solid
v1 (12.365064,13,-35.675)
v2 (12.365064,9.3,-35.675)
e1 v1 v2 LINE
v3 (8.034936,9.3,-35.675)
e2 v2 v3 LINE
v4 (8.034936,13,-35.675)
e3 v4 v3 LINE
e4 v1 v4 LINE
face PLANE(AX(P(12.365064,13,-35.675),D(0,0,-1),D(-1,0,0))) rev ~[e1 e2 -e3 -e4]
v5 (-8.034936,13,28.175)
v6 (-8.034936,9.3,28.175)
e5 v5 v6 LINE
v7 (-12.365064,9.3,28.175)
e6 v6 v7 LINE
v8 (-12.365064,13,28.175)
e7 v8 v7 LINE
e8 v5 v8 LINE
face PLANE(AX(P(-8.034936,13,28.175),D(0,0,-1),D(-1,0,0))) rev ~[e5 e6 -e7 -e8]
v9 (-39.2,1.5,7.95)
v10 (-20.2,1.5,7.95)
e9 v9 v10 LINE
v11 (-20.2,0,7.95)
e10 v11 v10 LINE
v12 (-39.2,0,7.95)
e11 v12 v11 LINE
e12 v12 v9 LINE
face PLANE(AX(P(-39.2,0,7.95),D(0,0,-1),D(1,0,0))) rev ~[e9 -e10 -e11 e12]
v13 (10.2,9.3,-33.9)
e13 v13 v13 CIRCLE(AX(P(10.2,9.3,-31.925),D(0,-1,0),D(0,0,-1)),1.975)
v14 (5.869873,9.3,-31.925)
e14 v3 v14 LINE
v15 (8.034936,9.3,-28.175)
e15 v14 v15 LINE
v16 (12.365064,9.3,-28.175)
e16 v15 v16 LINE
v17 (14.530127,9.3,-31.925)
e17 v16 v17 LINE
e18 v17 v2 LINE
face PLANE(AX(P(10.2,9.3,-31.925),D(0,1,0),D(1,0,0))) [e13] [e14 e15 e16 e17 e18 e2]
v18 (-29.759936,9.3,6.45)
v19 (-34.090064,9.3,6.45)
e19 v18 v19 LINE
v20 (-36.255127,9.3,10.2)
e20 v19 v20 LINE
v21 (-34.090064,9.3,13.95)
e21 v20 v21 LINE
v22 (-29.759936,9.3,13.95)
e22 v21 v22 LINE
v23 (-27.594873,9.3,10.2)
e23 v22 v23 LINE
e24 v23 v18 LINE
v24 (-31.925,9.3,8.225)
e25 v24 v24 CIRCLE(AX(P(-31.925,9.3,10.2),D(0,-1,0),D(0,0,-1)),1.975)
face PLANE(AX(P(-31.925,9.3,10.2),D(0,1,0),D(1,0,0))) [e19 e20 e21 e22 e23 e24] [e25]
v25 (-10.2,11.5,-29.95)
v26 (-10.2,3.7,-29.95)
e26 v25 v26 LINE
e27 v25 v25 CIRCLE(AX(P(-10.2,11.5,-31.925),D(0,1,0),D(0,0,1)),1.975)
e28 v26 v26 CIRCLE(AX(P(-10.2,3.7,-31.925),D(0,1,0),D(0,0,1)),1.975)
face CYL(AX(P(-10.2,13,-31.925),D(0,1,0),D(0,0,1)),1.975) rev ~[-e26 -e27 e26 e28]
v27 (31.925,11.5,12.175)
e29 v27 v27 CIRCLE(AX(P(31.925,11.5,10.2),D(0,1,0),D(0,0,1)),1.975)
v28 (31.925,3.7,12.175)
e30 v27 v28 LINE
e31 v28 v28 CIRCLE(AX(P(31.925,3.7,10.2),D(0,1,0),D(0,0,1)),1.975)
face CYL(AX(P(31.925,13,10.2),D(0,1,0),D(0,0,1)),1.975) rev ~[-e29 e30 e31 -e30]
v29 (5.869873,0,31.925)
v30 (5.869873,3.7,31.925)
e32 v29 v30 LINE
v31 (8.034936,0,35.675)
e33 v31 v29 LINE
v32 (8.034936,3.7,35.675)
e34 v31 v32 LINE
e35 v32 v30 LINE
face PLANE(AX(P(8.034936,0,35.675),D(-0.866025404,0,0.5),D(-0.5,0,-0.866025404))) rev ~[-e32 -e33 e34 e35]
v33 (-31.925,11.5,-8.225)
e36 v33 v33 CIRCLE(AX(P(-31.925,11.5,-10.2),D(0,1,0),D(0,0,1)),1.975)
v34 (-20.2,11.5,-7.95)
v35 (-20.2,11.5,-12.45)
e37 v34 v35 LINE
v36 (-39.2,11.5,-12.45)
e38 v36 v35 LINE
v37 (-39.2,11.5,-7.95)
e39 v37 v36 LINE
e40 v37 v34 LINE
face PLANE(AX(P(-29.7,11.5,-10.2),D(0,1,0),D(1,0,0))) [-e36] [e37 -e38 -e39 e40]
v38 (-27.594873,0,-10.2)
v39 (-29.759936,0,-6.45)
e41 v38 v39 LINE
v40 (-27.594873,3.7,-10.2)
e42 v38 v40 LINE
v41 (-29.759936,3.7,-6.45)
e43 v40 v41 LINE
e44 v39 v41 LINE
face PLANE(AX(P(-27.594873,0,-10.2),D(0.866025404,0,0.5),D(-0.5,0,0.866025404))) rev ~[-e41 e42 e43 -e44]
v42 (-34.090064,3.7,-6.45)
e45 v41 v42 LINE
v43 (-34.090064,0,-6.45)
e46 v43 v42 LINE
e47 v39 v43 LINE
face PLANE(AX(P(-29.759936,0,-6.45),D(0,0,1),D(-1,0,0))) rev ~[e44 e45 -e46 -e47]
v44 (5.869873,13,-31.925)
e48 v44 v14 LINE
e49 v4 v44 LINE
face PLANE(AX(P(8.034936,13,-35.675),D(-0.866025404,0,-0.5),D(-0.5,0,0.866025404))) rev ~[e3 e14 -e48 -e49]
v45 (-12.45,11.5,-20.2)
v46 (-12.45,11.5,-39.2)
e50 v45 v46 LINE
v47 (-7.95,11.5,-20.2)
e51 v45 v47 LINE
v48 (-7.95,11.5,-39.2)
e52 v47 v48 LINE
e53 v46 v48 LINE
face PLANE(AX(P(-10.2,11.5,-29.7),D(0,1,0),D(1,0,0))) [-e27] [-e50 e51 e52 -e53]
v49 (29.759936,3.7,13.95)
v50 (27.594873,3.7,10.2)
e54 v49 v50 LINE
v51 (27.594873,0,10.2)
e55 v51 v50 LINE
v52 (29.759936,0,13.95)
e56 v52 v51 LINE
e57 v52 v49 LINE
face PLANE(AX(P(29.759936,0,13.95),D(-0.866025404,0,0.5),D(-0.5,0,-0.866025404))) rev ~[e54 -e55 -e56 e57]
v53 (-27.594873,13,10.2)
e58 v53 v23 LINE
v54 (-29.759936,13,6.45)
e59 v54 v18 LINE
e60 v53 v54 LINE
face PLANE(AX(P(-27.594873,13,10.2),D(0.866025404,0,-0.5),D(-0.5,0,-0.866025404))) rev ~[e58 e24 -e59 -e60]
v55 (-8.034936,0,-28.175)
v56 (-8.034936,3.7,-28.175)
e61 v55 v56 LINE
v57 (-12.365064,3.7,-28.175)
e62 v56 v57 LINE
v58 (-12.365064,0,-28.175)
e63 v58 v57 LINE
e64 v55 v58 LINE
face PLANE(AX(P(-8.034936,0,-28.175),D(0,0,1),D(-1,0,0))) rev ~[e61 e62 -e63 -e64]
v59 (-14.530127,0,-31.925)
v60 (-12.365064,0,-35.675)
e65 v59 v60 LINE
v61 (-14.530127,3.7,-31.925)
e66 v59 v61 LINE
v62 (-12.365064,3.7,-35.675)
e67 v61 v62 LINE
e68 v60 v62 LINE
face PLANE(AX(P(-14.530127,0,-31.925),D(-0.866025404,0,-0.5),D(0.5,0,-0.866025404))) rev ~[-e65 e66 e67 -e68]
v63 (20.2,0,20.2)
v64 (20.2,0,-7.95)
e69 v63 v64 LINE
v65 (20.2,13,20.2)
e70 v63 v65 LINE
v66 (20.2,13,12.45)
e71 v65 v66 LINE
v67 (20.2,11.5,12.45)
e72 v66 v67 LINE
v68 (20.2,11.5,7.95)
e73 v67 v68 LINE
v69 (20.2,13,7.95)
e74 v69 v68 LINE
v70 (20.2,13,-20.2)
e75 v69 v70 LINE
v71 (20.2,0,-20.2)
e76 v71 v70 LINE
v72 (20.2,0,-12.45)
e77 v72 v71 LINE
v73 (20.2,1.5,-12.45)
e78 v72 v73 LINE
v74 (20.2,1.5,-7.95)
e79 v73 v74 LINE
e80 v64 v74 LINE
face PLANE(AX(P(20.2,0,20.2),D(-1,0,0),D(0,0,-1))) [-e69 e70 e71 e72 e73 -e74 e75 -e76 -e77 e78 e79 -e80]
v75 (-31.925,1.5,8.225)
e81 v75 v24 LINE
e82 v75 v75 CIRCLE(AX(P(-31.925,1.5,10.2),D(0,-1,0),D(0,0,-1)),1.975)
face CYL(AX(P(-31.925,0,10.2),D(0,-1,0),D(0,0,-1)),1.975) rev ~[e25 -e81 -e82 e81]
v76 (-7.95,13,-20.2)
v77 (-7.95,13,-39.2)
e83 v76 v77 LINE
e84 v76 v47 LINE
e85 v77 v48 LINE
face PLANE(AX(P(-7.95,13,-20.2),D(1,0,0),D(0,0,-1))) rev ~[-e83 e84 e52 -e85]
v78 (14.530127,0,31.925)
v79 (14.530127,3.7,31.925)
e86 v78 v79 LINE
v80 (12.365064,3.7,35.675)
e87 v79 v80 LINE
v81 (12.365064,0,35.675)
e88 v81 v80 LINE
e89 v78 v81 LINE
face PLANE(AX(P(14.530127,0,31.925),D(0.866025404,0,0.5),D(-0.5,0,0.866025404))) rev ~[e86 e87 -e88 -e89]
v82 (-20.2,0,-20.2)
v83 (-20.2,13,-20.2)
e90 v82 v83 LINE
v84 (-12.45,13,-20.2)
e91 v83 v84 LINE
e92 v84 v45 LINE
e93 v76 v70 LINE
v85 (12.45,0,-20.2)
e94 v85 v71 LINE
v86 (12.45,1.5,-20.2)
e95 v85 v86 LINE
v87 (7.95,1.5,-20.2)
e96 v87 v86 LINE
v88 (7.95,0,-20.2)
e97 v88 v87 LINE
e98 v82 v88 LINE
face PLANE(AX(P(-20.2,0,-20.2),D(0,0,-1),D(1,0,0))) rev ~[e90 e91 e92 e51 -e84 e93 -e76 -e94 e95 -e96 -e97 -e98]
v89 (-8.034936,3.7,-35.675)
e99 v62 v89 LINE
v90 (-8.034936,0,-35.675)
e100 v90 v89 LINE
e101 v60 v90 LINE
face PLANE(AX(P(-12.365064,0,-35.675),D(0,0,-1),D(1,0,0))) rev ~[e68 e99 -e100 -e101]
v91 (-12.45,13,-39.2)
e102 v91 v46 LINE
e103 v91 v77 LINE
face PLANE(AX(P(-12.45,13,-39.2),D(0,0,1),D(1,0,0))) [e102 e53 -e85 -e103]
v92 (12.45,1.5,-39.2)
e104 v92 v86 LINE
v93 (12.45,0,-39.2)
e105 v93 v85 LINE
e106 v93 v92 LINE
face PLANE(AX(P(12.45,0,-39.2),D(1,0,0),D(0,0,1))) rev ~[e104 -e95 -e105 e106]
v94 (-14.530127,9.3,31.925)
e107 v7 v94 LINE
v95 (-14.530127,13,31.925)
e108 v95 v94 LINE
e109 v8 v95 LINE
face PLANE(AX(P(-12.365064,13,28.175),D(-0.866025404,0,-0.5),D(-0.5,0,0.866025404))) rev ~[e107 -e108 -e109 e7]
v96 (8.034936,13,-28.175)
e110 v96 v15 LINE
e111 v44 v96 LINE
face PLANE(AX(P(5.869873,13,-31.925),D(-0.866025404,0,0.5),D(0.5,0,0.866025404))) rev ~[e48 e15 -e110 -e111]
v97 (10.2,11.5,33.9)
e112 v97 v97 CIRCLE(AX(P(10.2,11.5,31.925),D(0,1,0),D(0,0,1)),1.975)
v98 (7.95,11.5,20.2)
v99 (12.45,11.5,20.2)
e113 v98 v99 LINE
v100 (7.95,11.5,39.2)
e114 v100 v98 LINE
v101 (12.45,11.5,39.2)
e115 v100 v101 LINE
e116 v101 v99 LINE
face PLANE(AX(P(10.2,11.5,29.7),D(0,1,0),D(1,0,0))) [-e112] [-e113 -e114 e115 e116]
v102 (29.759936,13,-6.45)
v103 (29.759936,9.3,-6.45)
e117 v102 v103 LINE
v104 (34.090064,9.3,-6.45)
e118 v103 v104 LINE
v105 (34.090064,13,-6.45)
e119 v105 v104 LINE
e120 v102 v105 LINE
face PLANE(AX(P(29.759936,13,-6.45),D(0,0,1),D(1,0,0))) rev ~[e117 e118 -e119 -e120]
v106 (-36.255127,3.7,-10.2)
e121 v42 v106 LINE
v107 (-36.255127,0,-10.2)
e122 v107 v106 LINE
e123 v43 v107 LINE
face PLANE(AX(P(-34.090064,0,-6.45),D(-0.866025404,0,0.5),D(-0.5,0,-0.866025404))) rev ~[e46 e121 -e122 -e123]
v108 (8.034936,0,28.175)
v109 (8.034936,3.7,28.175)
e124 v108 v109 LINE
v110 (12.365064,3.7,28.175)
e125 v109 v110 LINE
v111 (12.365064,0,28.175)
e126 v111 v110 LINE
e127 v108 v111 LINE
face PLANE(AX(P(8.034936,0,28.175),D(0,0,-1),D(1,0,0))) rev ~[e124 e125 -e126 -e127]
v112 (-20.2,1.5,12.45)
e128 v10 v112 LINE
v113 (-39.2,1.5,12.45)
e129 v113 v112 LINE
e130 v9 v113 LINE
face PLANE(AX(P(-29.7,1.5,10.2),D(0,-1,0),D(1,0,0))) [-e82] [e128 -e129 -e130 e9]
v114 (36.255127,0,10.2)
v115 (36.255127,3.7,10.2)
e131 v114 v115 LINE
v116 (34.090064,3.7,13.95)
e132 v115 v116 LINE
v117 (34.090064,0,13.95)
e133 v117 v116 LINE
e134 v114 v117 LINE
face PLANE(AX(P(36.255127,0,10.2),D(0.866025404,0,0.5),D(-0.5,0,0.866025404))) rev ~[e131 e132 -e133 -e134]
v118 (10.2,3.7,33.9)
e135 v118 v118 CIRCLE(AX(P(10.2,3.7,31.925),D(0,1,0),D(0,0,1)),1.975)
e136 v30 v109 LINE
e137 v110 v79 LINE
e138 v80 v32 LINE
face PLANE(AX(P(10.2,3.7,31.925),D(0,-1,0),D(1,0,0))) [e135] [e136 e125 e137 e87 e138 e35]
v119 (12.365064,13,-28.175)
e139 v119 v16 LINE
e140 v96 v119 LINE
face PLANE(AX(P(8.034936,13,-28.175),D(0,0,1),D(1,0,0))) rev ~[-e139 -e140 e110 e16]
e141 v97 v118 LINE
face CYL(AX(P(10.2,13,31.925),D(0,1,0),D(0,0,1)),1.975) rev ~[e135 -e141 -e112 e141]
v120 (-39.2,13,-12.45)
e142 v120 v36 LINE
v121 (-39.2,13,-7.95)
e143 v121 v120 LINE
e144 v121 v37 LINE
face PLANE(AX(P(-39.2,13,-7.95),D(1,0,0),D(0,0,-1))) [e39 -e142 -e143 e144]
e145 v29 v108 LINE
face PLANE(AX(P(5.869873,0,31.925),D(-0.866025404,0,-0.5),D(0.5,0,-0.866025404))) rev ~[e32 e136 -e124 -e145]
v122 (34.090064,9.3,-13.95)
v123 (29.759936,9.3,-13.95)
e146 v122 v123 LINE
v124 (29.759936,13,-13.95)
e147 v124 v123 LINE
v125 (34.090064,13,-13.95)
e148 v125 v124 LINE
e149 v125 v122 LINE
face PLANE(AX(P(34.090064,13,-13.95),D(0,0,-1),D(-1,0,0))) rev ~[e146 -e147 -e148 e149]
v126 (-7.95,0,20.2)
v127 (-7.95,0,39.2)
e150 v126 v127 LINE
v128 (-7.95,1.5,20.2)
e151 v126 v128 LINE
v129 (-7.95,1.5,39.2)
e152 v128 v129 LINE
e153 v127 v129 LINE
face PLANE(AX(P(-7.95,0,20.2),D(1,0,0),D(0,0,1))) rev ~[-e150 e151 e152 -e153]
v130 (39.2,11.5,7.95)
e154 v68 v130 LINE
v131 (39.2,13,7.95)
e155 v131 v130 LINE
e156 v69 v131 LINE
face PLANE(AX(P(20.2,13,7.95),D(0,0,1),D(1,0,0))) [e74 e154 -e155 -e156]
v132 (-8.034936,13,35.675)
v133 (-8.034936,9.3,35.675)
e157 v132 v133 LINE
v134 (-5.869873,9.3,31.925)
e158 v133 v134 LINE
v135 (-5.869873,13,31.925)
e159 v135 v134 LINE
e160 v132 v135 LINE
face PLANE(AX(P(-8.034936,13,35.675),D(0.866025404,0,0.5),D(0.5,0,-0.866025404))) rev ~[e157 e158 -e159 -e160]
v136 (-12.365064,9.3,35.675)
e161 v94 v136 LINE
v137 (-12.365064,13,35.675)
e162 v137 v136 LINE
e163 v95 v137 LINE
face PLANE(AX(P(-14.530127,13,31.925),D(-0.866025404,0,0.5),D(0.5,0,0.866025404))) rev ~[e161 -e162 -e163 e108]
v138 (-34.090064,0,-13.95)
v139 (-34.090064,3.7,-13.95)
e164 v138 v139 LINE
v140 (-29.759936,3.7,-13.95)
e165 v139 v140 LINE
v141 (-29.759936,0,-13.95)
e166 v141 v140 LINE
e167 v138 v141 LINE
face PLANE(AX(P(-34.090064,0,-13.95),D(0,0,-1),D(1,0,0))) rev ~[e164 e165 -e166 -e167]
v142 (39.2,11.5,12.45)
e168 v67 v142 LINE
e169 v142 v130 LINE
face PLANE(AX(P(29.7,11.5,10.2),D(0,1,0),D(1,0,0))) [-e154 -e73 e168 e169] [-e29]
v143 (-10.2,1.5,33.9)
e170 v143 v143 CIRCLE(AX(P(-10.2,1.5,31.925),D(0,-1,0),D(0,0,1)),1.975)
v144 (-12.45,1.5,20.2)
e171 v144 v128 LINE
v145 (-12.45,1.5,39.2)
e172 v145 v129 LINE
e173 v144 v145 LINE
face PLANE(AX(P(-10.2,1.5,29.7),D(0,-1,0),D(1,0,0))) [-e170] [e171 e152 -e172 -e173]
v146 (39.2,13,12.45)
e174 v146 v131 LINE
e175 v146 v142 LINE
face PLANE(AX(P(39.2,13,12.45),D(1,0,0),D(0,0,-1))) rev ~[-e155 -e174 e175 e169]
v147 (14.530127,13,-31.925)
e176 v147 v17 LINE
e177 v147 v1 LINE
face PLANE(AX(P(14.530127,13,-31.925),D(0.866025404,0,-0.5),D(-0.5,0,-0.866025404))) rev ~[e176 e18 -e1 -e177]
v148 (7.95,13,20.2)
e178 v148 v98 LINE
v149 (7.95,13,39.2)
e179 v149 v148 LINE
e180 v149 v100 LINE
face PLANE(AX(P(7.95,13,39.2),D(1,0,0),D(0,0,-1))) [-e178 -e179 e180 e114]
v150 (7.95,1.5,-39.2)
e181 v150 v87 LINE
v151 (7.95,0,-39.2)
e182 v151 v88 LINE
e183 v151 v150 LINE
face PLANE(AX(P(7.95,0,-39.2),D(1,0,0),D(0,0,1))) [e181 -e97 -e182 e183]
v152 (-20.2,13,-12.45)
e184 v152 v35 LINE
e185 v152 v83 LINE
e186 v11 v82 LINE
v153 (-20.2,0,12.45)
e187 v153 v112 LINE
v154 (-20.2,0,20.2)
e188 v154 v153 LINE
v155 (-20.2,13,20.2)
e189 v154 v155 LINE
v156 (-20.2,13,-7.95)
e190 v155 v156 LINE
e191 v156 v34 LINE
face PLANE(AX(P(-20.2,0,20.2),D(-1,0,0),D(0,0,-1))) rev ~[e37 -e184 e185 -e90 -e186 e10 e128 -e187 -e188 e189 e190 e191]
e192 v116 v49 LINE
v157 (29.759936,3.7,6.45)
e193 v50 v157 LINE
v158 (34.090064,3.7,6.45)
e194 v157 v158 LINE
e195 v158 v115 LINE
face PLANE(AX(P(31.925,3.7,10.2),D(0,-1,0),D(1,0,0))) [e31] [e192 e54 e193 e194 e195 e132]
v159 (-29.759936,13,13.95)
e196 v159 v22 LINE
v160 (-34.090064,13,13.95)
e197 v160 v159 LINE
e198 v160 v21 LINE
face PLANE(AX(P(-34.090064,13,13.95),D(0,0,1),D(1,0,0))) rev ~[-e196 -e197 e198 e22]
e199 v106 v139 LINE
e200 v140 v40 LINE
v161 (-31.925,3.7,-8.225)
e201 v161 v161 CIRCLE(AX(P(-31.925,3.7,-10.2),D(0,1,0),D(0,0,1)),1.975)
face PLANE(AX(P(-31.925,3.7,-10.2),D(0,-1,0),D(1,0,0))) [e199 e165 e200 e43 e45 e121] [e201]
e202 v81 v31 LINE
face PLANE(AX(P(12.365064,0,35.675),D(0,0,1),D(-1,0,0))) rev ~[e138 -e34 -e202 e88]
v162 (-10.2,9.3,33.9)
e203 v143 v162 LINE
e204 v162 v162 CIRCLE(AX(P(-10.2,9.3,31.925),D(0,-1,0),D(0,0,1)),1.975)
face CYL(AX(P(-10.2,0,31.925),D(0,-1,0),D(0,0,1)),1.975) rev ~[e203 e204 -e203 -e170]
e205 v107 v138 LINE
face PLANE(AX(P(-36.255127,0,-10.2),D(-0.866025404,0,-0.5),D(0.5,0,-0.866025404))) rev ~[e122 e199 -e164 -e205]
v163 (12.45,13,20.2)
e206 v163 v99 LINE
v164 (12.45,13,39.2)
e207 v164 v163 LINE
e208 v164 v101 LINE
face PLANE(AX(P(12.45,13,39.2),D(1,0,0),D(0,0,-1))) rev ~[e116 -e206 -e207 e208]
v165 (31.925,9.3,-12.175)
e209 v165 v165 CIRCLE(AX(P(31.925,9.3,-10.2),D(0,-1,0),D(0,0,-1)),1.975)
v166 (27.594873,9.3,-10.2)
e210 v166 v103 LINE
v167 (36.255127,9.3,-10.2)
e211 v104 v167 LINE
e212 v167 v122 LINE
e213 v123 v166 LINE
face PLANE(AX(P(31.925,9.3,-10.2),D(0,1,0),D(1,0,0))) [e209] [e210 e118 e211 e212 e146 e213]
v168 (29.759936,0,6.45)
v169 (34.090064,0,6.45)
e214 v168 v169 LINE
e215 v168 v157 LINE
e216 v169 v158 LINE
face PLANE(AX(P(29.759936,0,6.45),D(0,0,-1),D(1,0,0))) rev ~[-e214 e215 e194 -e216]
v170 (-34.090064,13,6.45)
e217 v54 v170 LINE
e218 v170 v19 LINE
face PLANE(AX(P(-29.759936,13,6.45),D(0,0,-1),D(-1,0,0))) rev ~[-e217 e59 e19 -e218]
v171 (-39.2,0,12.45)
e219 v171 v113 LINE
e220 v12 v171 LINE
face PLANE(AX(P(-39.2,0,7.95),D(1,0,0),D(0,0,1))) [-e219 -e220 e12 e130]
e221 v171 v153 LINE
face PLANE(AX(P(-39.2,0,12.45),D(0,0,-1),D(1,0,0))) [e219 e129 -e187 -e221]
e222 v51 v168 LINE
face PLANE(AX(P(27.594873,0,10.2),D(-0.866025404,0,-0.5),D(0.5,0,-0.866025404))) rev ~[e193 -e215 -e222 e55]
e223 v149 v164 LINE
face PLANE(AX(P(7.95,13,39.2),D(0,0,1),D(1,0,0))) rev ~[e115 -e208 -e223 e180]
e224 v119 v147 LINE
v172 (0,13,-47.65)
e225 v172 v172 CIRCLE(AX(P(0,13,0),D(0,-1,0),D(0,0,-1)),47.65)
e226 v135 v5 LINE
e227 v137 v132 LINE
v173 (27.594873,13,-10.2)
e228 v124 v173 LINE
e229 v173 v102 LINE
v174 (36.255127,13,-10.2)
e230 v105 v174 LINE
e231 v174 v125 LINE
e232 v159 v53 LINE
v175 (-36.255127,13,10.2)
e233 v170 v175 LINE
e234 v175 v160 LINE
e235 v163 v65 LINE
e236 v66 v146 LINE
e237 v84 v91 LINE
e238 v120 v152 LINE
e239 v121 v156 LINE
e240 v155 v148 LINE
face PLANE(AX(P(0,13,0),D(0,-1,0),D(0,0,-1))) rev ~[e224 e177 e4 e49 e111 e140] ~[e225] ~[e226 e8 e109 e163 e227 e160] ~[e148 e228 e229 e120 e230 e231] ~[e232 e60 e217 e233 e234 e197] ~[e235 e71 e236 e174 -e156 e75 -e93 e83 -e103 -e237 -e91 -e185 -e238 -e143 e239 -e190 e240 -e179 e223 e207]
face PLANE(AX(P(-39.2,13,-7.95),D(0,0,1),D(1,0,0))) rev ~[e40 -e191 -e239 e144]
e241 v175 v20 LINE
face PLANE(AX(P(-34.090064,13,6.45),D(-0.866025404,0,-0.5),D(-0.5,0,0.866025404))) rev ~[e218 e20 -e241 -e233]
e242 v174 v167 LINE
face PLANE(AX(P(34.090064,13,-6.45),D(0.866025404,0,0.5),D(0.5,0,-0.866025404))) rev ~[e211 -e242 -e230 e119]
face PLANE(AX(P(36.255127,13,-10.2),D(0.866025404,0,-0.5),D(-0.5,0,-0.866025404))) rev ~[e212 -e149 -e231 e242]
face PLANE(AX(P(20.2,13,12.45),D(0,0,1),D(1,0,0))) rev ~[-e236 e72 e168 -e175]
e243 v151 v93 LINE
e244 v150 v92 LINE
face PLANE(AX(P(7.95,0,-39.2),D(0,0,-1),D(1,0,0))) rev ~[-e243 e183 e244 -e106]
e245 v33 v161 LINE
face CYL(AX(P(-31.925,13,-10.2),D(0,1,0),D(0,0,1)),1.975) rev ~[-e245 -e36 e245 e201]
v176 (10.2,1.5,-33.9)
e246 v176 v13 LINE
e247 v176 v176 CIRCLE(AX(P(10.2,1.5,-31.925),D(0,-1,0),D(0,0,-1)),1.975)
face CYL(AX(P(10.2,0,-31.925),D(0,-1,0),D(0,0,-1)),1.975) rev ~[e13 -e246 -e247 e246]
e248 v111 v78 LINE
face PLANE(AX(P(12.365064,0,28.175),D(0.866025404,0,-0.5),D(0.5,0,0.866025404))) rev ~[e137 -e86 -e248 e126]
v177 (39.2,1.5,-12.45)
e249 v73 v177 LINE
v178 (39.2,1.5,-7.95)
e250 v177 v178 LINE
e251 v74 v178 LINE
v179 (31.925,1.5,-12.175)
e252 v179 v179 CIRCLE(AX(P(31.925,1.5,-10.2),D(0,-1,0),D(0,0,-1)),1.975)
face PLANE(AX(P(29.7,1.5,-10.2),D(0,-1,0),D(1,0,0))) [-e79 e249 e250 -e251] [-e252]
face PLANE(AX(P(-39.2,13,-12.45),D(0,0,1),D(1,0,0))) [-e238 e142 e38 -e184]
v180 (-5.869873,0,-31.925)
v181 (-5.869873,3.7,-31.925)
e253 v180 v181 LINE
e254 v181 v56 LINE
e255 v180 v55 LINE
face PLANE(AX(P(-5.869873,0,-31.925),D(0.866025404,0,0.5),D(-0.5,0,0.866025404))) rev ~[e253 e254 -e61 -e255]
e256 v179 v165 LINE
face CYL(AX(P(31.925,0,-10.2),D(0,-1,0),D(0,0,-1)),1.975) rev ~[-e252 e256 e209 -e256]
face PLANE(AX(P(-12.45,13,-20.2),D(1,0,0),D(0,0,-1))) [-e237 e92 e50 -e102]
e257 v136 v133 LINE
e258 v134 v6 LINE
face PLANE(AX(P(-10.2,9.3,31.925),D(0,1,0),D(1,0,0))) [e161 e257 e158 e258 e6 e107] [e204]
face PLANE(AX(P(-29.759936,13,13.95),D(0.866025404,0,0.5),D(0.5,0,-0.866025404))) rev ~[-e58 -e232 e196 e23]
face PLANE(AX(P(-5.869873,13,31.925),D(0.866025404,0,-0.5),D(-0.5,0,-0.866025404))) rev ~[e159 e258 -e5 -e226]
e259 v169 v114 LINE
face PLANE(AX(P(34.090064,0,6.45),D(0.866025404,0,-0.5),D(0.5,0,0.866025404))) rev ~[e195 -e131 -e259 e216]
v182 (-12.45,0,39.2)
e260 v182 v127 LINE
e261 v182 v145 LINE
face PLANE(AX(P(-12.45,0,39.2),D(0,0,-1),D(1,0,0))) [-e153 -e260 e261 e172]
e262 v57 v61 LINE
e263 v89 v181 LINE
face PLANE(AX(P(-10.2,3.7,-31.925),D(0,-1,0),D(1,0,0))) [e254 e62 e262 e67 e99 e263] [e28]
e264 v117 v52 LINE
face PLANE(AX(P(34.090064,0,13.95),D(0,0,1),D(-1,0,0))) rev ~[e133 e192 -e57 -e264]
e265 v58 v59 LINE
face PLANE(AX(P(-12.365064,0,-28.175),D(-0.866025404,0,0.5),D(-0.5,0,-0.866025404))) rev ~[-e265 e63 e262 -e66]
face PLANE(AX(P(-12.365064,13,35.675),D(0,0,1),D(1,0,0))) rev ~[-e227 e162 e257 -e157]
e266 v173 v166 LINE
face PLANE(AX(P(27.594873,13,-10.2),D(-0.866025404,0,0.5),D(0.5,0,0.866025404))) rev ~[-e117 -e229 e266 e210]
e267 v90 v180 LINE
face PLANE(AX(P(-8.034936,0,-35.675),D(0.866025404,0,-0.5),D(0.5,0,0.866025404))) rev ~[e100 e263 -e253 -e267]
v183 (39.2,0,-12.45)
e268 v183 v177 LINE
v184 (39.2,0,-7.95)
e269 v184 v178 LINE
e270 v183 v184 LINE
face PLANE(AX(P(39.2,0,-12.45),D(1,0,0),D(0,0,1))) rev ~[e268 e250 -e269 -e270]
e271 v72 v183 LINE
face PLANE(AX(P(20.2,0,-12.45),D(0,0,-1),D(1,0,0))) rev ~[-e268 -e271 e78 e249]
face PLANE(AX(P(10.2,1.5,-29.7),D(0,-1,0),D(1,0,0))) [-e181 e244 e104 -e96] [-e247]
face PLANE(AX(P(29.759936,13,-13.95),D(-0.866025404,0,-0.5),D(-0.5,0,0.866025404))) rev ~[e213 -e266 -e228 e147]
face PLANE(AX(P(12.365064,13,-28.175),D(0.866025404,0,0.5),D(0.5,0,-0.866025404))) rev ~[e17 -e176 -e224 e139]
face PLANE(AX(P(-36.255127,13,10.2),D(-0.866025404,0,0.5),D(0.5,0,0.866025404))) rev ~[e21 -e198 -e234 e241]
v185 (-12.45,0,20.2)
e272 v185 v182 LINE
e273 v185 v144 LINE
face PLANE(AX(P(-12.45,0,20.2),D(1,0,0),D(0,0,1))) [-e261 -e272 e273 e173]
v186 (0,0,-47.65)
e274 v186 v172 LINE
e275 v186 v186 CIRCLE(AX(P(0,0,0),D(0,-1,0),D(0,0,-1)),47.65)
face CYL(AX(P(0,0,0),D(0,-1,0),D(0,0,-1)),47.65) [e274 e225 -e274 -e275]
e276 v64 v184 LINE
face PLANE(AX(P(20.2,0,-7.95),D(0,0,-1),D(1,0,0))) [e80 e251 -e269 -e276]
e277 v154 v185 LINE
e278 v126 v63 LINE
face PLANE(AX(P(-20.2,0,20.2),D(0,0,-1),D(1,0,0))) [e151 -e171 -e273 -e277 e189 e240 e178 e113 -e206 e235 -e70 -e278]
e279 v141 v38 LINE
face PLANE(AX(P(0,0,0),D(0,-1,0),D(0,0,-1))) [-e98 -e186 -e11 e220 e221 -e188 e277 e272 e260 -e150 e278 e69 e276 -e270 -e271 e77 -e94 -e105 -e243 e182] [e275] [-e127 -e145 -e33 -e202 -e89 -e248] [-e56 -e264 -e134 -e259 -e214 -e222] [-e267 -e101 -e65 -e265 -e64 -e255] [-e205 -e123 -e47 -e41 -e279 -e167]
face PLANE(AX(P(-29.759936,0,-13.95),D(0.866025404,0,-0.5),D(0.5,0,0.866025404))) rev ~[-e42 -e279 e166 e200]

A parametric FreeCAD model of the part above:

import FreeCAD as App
import Part
import Sketcher

V = App.Vector
Q = App.Units.Quantity

doc = App.newDocument("Part")
body = doc.addObject("PartDesign::Body", "Body")

sketch1 = body.newObject("Sketcher::SketchObject", "Sketch")
sketch1.AttachmentSupport = (doc.getObject("XZ_Plane"), [""])
sketch1.MapMode = "FlatFace"
sketch1.addGeometry([
    Part.Circle(V(0, 0, 0), V(0, 0, 1), 50),
    Part.LineSegment(V(20, 20, 0), V(-20, 20, 0)),
    Part.LineSegment(V(-20, 20, 0), V(-20, -20, 0)),
    Part.LineSegment(V(-20, -20, 0), V(20, -20, 0)),
    Part.LineSegment(V(20, -20, 0), V(20, 20, 0)),
], False)
sketch1.addConstraint([
    Sketcher.Constraint("Coincident", 1, 2, 2, 1),
    Sketcher.Constraint("Coincident", 2, 2, 3, 1),
    Sketcher.Constraint("Coincident", 3, 2, 4, 1),
    Sketcher.Constraint("Coincident", 4, 2, 1, 1),
    Sketcher.Constraint("Horizontal", 1),
    Sketcher.Constraint("Vertical", 2),
    Sketcher.Constraint("Horizontal", 3),
    Sketcher.Constraint("Vertical", 4),
    Sketcher.Constraint("Coincident", 0, 3, -1, 1),
    Sketcher.Constraint("Symmetric", 1, 2, 3, 2, -1, 1),
    Sketcher.Constraint("Equal", 3, 2),
    Sketcher.Constraint("Diameter", 0, Q("100.2 mm")),
    Sketcher.Constraint("DistanceX", 1, 2, 1, 1, Q("40.4 mm")),
])
pad1 = body.newObject("PartDesign::Pad", "Pad")
pad1.Profile = sketch1
pad1.Length = 13
pad1.Reversed = True

sketch2 = body.newObject("Sketcher::SketchObject", "Sketch001")
sketch2.AttachmentSupport = (doc.getObject("XZ_Plane"), [""])
sketch2.MapMode = "FlatFace"
sketch2.AttachmentOffset = App.Placement(V(0, 0, -13), App.Rotation())
sketch2.addGeometry([
    Part.LineSegment(V(-12.4, -39.2, 0), V(-12.4, -20.2, 0)),
    Part.LineSegment(V(-12.4, -20.2, 0), V(-8, -20.2, 0)),
    Part.LineSegment(V(-8, -20.2, 0), V(-8, -39.2, 0)),
    Part.LineSegment(V(-8, -39.2, 0), V(-12.4, -39.2, 0)),
    Part.LineSegment(V(20.2, 8, 0), V(20.2, 12.4, 0)),
    Part.LineSegment(V(20.2, 12.4, 0), V(39.2, 12.4, 0)),
    Part.LineSegment(V(39.2, 12.4, 0), V(39.2, 8, 0)),
    Part.LineSegment(V(39.2, 8, 0), V(20.2, 8, 0)),
    Part.LineSegment(V(8, 20.2, 0), V(8, 39.2, 0)),
    Part.LineSegment(V(8, 39.2, 0), V(12.4, 39.2, 0)),
    Part.LineSegment(V(12.4, 39.2, 0), V(12.4, 20.2, 0)),
    Part.LineSegment(V(12.4, 20.2, 0), V(8, 20.2, 0)),
    Part.LineSegment(V(-39.2, -12.4, 0), V(-39.2, -8, 0)),
    Part.LineSegment(V(-39.2, -8, 0), V(-20.2, -8, 0)),
    Part.LineSegment(V(-20.2, -8, 0), V(-20.2, -12.4, 0)),
    Part.LineSegment(V(-20.2, -12.4, 0), V(-39.2, -12.4, 0)),
], False)
sketch2.addConstraint([
    Sketcher.Constraint("Coincident", 0, 2, 1, 1),
    Sketcher.Constraint("Coincident", 1, 2, 2, 1),
    Sketcher.Constraint("Coincident", 2, 2, 3, 1),
    Sketcher.Constraint("Coincident", 3, 2, 0, 1),
    Sketcher.Constraint("Coincident", 4, 2, 5, 1),
    Sketcher.Constraint("Coincident", 5, 2, 6, 1),
    Sketcher.Constraint("Coincident", 6, 2, 7, 1),
    Sketcher.Constraint("Coincident", 7, 2, 4, 1),
    Sketcher.Constraint("Coincident", 8, 2, 9, 1),
    Sketcher.Constraint("Coincident", 9, 2, 10, 1),
    Sketcher.Constraint("Coincident", 10, 2, 11, 1),
    Sketcher.Constraint("Coincident", 11, 2, 8, 1),
    Sketcher.Constraint("Coincident", 12, 2, 13, 1),
    Sketcher.Constraint("Coincident", 13, 2, 14, 1),
    Sketcher.Constraint("Coincident", 14, 2, 15, 1),
    Sketcher.Constraint("Coincident", 15, 2, 12, 1),
    Sketcher.Constraint("Vertical", 0),
    Sketcher.Constraint("Horizontal", 1),
    Sketcher.Constraint("Vertical", 2),
    Sketcher.Constraint("Horizontal", 3),
    Sketcher.Constraint("Vertical", 4),
    Sketcher.Constraint("Horizontal", 5),
    Sketcher.Constraint("Vertical", 6),
    Sketcher.Constraint("Horizontal", 7),
    Sketcher.Constraint("Vertical", 8),
    Sketcher.Constraint("Horizontal", 9),
    Sketcher.Constraint("Vertical", 10),
    Sketcher.Constraint("Horizontal", 11),
    Sketcher.Constraint("Vertical", 12),
    Sketcher.Constraint("Horizontal", 13),
    Sketcher.Constraint("Vertical", 14),
    Sketcher.Constraint("Horizontal", 15),
    Sketcher.Constraint("Symmetric", 2, 2, 8, 2, -1, 1),
    Sketcher.Constraint("Symmetric", 0, 2, 10, 2, -1, 1),
    Sketcher.Constraint("Symmetric", 6, 2, 12, 2, -1, 1),
    Sketcher.Constraint("Symmetric", 4, 2, 14, 2, -1, 1),
    Sketcher.Constraint("Equal", 15, 0),
    Sketcher.Constraint("Equal", 11, 4),
    Sketcher.Constraint("DistanceX", 5, 1, 5, 2, Q("19 mm")),
    Sketcher.Constraint("DistanceX", 1, 1, 1, 2, Q("4.5 mm")),
    Sketcher.Constraint("DistanceY", 0, 2, -1, 1, Q("20.2 mm")),
    Sketcher.Constraint("DistanceX", -1, 1, 4, 2, Q("20.2 mm")),
    Sketcher.Constraint("DistanceX", 1, 2, 8, 2, Q("15.9 mm")),
    Sketcher.Constraint("DistanceY", -1, 1, 4, 2, Q("12.45 mm")),
])
pocket1 = body.newObject("PartDesign::Pocket", "Pocket")
pocket1.Profile = sketch2
pocket1.Length = 1.5
pocket1.Reversed = True

sketch3 = body.newObject("Sketcher::SketchObject", "Sketch002")
sketch3.AttachmentSupport = (doc.getObject("XZ_Plane"), [""])
sketch3.MapMode = "FlatFace"
sketch3.addGeometry([
    Part.LineSegment(V(-12.4, 39.2, 0), V(-12.4, 20.2, 0)),
    Part.LineSegment(V(-12.4, 20.2, 0), V(-8, 20.2, 0)),
    Part.LineSegment(V(-8, 20.2, 0), V(-8, 39.2, 0)),
    Part.LineSegment(V(-8, 39.2, 0), V(-12.4, 39.2, 0)),
    Part.LineSegment(V(20.2, -8, 0), V(20.2, -12.4, 0)),
    Part.LineSegment(V(20.2, -12.4, 0), V(39.2, -12.4, 0)),
    Part.LineSegment(V(39.2, -12.4, 0), V(39.2, -8, 0)),
    Part.LineSegment(V(39.2, -8, 0), V(20.2, -8, 0)),
    Part.LineSegment(V(8, -20.2, 0), V(8, -39.2, 0)),
    Part.LineSegment(V(8, -39.2, 0), V(12.4, -39.2, 0)),
    Part.LineSegment(V(12.4, -39.2, 0), V(12.4, -20.2, 0)),
    Part.LineSegment(V(12.4, -20.2, 0), V(8, -20.2, 0)),
    Part.LineSegment(V(-39.2, 12.4, 0), V(-39.2, 8, 0)),
    Part.LineSegment(V(-39.2, 8, 0), V(-20.2, 8, 0)),
    Part.LineSegment(V(-20.2, 8, 0), V(-20.2, 12.4, 0)),
    Part.LineSegment(V(-20.2, 12.4, 0), V(-39.2, 12.4, 0)),
], False)
sketch3.addConstraint([
    Sketcher.Constraint("Coincident", 0, 2, 1, 1),
    Sketcher.Constraint("Coincident", 1, 2, 2, 1),
    Sketcher.Constraint("Coincident", 2, 2, 3, 1),
    Sketcher.Constraint("Coincident", 3, 2, 0, 1),
    Sketcher.Constraint("Coincident", 4, 2, 5, 1),
    Sketcher.Constraint("Coincident", 5, 2, 6, 1),
    Sketcher.Constraint("Coincident", 6, 2, 7, 1),
    Sketcher.Constraint("Coincident", 7, 2, 4, 1),
    Sketcher.Constraint("Coincident", 8, 2, 9, 1),
    Sketcher.Constraint("Coincident", 9, 2, 10, 1),
    Sketcher.Constraint("Coincident", 10, 2, 11, 1),
    Sketcher.Constraint("Coincident", 11, 2, 8, 1),
    Sketcher.Constraint("Coincident", 12, 2, 13, 1),
    Sketcher.Constraint("Coincident", 13, 2, 14, 1),
    Sketcher.Constraint("Coincident", 14, 2, 15, 1),
    Sketcher.Constraint("Coincident", 15, 2, 12, 1),
    Sketcher.Constraint("Vertical", 0),
    Sketcher.Constraint("Horizontal", 1),
    Sketcher.Constraint("Vertical", 2),
    Sketcher.Constraint("Horizontal", 3),
    Sketcher.Constraint("Vertical", 4),
    Sketcher.Constraint("Horizontal", 5),
    Sketcher.Constraint("Vertical", 6),
    Sketcher.Constraint("Horizontal", 7),
    Sketcher.Constraint("Vertical", 8),
    Sketcher.Constraint("Horizontal", 9),
    Sketcher.Constraint("Vertical", 10),
    Sketcher.Constraint("Horizontal", 11),
    Sketcher.Constraint("Vertical", 12),
    Sketcher.Constraint("Horizontal", 13),
    Sketcher.Constraint("Vertical", 14),
    Sketcher.Constraint("Horizontal", 15),
    Sketcher.Constraint("Symmetric", 2, 2, 8, 2, -1, 1),
    Sketcher.Constraint("Symmetric", 0, 2, 10, 2, -1, 1),
    Sketcher.Constraint("Symmetric", 6, 2, 12, 2, -1, 1),
    Sketcher.Constraint("Symmetric", 4, 2, 14, 2, -1, 1),
    Sketcher.Constraint("Equal", 15, 0),
    Sketcher.Constraint("Equal", 11, 4),
    Sketcher.Constraint("DistanceX", 5, 1, 5, 2, Q("19 mm")),
    Sketcher.Constraint("DistanceX", 1, 1, 1, 2, Q("4.5 mm")),
    Sketcher.Constraint("DistanceY", -1, 1, 0, 2, Q("20.2 mm")),
    Sketcher.Constraint("DistanceX", -1, 1, 4, 2, Q("20.2 mm")),
    Sketcher.Constraint("DistanceX", 1, 2, 8, 2, Q("15.9 mm")),
    Sketcher.Constraint("DistanceY", 4, 2, -1, 1, Q("12.45 mm")),
])
pocket2 = body.newObject("PartDesign::Pocket", "Pocket001")
pocket2.Profile = sketch3
pocket2.Length = 1.5

sketch4 = body.newObject("Sketcher::SketchObject", "Sketch003")
sketch4.AttachmentSupport = (doc.getObject("XZ_Plane"), [""])
sketch4.MapMode = "FlatFace"
sketch4.AttachmentOffset = App.Placement(V(0, 0, -13), App.Rotation())
sketch4.addGeometry([
    Part.Circle(V(31.9, 10.2, 0), V(0, 0, 1), 2),
    Part.Circle(V(-10.2, -31.9, 0), V(0, 0, 1), 2),
    Part.Circle(V(-31.9, -10.2, 0), V(0, 0, 1), 2),
    Part.Circle(V(10.2, 31.9, 0), V(0, 0, 1), 2),
], False)
sketch4.addConstraint([
    Sketcher.Constraint("Equal", 0, 1),
    Sketcher.Constraint("Equal", 1, 2),
    Sketcher.Constraint("Equal", 2, 3),
    Sketcher.Constraint("Symmetric", 0, 3, 2, 3, -1, 1),
    Sketcher.Constraint("Symmetric", 1, 3, 3, 3, -1, 1),
    Sketcher.Constraint("Diameter", 0, Q("3.95 mm")),
    Sketcher.Constraint("DistanceY", -1, 1, 0, 3, Q("10.2 mm")),
    Sketcher.Constraint("DistanceX", 1, 3, -1, 1, Q("10.2 mm")),
    Sketcher.Constraint("DistanceX", 2, 3, 0, 3, Q("63.85 mm")),
    Sketcher.Constraint("DistanceY", 1, 3, 3, 3, Q("63.85 mm")),
])
pocket3 = body.newObject("PartDesign::Pocket", "Pocket002")
pocket3.Profile = sketch4
pocket3.Length = 21.5
pocket3.Reversed = True

sketch5 = body.newObject("Sketcher::SketchObject", "Sketch004")
sketch5.AttachmentSupport = (doc.getObject("XZ_Plane"), [""])
sketch5.MapMode = "FlatFace"
sketch5.addGeometry([
    Part.Circle(V(-10.2, 31.9, 0), V(0, 0, 1), 2),
    Part.Circle(V(31.9, -10.2, 0), V(0, 0, 1), 2),
    Part.Circle(V(10.2, -31.9, 0), V(0, 0, 1), 2),
    Part.Circle(V(-31.9, 10.2, 0), V(0, 0, 1), 2),
], False)
sketch5.addConstraint([
    Sketcher.Constraint("Equal", 0, 1),
    Sketcher.Constraint("Equal", 1, 2),
    Sketcher.Constraint("Equal", 2, 3),
    Sketcher.Constraint("Symmetric", 0, 3, 2, 3, -1, 1),
    Sketcher.Constraint("Symmetric", 1, 3, 3, 3, -1, 1),
    Sketcher.Constraint("Diameter", 0, Q("3.95 mm")),
    Sketcher.Constraint("DistanceX", 0, 3, -1, 1, Q("10.2 mm")),
    Sketcher.Constraint("DistanceY", 1, 3, -1, 1, Q("10.2 mm")),
    Sketcher.Constraint("DistanceY", 2, 3, 0, 3, Q("63.85 mm")),
    Sketcher.Constraint("DistanceX", 3, 3, 1, 3, Q("63.85 mm")),
])
pocket4 = body.newObject("PartDesign::Pocket", "Pocket003")
pocket4.Profile = sketch5
pocket4.Length = 21.5

sketch6 = body.newObject("Sketcher::SketchObject", "Sketch005")
sketch6.AttachmentSupport = (doc.getObject("XZ_Plane"), [""])
sketch6.MapMode = "FlatFace"
sketch6.addGeometry([
    Part.LineSegment(V(14.5, 31.9, 0), V(12.4, 35.7, 0)),
    Part.LineSegment(V(12.4, 35.7, 0), V(8, 35.7, 0)),
    Part.LineSegment(V(8, 35.7, 0), V(5.9, 31.9, 0)),
    Part.LineSegment(V(5.9, 31.9, 0), V(8, 28.2, 0)),
    Part.LineSegment(V(8, 28.2, 0), V(12.4, 28.2, 0)),
    Part.LineSegment(V(12.4, 28.2, 0), V(14.5, 31.9, 0)),
    Part.LineSegment(V(36.3, 10.2, 0), V(34.1, 13.9, 0)),
    Part.LineSegment(V(34.1, 13.9, 0), V(29.8, 13.9, 0)),
    Part.LineSegment(V(29.8, 13.9, 0), V(27.6, 10.2, 0)),
    Part.LineSegment(V(27.6, 10.2, 0), V(29.8, 6.5, 0)),
    Part.LineSegment(V(29.8, 6.5, 0), V(34.1, 6.5, 0)),
    Part.LineSegment(V(34.1, 6.5, 0), V(36.3, 10.2, 0)),
    Part.LineSegment(V(-27.6, -10.2, 0), V(-29.8, -6.5, 0)),
    Part.LineSegment(V(-29.8, -6.5, 0), V(-34.1, -6.5, 0)),
    Part.LineSegment(V(-34.1, -6.5, 0), V(-36.3, -10.2, 0)),
    Part.LineSegment(V(-36.3, -10.2, 0), V(-34.1, -13.9, 0)),
    Part.LineSegment(V(-34.1, -13.9, 0), V(-29.8, -13.9, 0)),
    Part.LineSegment(V(-29.8, -13.9, 0), V(-27.6, -10.2, 0)),
    Part.LineSegment(V(-5.9, -31.9, 0), V(-8, -28.2, 0)),
    Part.LineSegment(V(-8, -28.2, 0), V(-12.4, -28.2, 0)),
    Part.LineSegment(V(-12.4, -28.2, 0), V(-14.5, -31.9, 0)),
    Part.LineSegment(V(-14.5, -31.9, 0), V(-12.4, -35.7, 0)),
    Part.LineSegment(V(-12.4, -35.7, 0), V(-8, -35.7, 0)),
    Part.LineSegment(V(-8, -35.7, 0), V(-5.9, -31.9, 0)),
], False)
sketch6.addConstraint([
    Sketcher.Constraint("Coincident", 0, 2, 1, 1),
    Sketcher.Constraint("Coincident", 1, 2, 2, 1),
    Sketcher.Constraint("Coincident", 2, 2, 3, 1),
    Sketcher.Constraint("Coincident", 3, 2, 4, 1),
    Sketcher.Constraint("Coincident", 4, 2, 5, 1),
    Sketcher.Constraint("Coincident", 5, 2, 0, 1),
    Sketcher.Constraint("Coincident", 6, 2, 7, 1),
    Sketcher.Constraint("Coincident", 7, 2, 8, 1),
    Sketcher.Constraint("Coincident", 8, 2, 9, 1),
    Sketcher.Constraint("Coincident", 9, 2, 10, 1),
    Sketcher.Constraint("Coincident", 10, 2, 11, 1),
    Sketcher.Constraint("Coincident", 11, 2, 6, 1),
    Sketcher.Constraint("Coincident", 12, 2, 13, 1),
    Sketcher.Constraint("Coincident", 13, 2, 14, 1),
    Sketcher.Constraint("Coincident", 14, 2, 15, 1),
    Sketcher.Constraint("Coincident", 15, 2, 16, 1),
    Sketcher.Constraint("Coincident", 16, 2, 17, 1),
    Sketcher.Constraint("Coincident", 17, 2, 12, 1),
    Sketcher.Constraint("Coincident", 18, 2, 19, 1),
    Sketcher.Constraint("Coincident", 19, 2, 20, 1),
    Sketcher.Constraint("Coincident", 20, 2, 21, 1),
    Sketcher.Constraint("Coincident", 21, 2, 22, 1),
    Sketcher.Constraint("Coincident", 22, 2, 23, 1),
    Sketcher.Constraint("Coincident", 23, 2, 18, 1),
    Sketcher.Constraint("Horizontal", 1),
    Sketcher.Constraint("Horizontal", 4),
    Sketcher.Constraint("Horizontal", 7),
    Sketcher.Constraint("Horizontal", 10),
    Sketcher.Constraint("Horizontal", 13),
    Sketcher.Constraint("Horizontal", 16),
    Sketcher.Constraint("Horizontal", 19),
    Sketcher.Constraint("Horizontal", 22),
    Sketcher.Constraint("Symmetric", 9, 2, 12, 2, -1, 1),
    Sketcher.Constraint("Symmetric", 11, 2, 14, 2, -1, 1),
    Sketcher.Constraint("Symmetric", 6, 2, 15, 2, -1, 1),
    Sketcher.Constraint("Symmetric", 8, 2, 17, 2, -1, 1),
    Sketcher.Constraint("Symmetric", 3, 2, 18, 2, -1, 1),
    Sketcher.Constraint("Symmetric", 5, 2, 20, 2, -1, 1),
    Sketcher.Constraint("Symmetric", 0, 2, 21, 2, -1, 1),
    Sketcher.Constraint("Symmetric", 2, 2, 23, 2, -1, 1),
    Sketcher.Constraint("Parallel", 0, 3),
    Sketcher.Constraint("Parallel", 2, 5),
    Sketcher.Constraint("Parallel", 3, 6),
    Sketcher.Constraint("Parallel", 5, 8),
    Sketcher.Constraint("Parallel", 6, 9),
    Sketcher.Constraint("Parallel", 8, 11),
    Sketcher.Constraint("Parallel", 11, 14),
    Sketcher.Constraint("Parallel", 14, 17),
    Sketcher.Constraint("Parallel", 17, 20),
    Sketcher.Constraint("Parallel", 20, 23),
    Sketcher.Constraint("Horizontal", 2, 2, 5, 2),
    Sketcher.Constraint("Horizontal", 8, 2, 11, 2),
    Sketcher.Constraint("Vertical", 1, 2, 3, 2),
    Sketcher.Constraint("Vertical", 0, 2, 4, 2),
    Sketcher.Constraint("Vertical", 7, 2, 9, 2),
    Sketcher.Constraint("Equal", 4, 7),
    Sketcher.Constraint("Equal", 5, 6),
    Sketcher.Constraint("Angle", 0, Q("120 deg")),
    Sketcher.Constraint("DistanceY", -1, 1, 8, 2, Q("10.2 mm")),
    Sketcher.Constraint("DistanceY", 3, 2, 1, 2, Q("7.5 mm")),
    Sketcher.Constraint("DistanceY", -1, 1, 0, 2, Q("35.675 mm")),
    Sketcher.Constraint("DistanceX", 4, 2, 6, 2, Q("21.725 mm")),
    Sketcher.Constraint("DistanceX", 12, 2, 4, 2, Q("42.125 mm")),
    Sketcher.Constraint("DistanceX", 1, 2, 1, 1, Q("4.330127 mm")),
])
pocket5 = body.newObject("PartDesign::Pocket", "Pocket004")
pocket5.Profile = sketch6
pocket5.Length = 3.7

sketch7 = body.newObject("Sketcher::SketchObject", "Sketch006")
sketch7.AttachmentSupport = (doc.getObject("XZ_Plane"), [""])
sketch7.MapMode = "FlatFace"
sketch7.AttachmentOffset = App.Placement(V(0, 0, -13), App.Rotation())
sketch7.addGeometry([
    Part.LineSegment(V(14.5, -31.9, 0), V(12.4, -35.7, 0)),
    Part.LineSegment(V(12.4, -35.7, 0), V(8, -35.7, 0)),
    Part.LineSegment(V(8, -35.7, 0), V(5.9, -31.9, 0)),
    Part.LineSegment(V(5.9, -31.9, 0), V(8, -28.2, 0)),
    Part.LineSegment(V(8, -28.2, 0), V(12.4, -28.2, 0)),
    Part.LineSegment(V(12.4, -28.2, 0), V(14.5, -31.9, 0)),
    Part.LineSegment(V(36.3, -10.2, 0), V(34.1, -13.9, 0)),
    Part.LineSegment(V(34.1, -13.9, 0), V(29.8, -13.9, 0)),
    Part.LineSegment(V(29.8, -13.9, 0), V(27.6, -10.2, 0)),
    Part.LineSegment(V(27.6, -10.2, 0), V(29.8, -6.5, 0)),
    Part.LineSegment(V(29.8, -6.5, 0), V(34.1, -6.5, 0)),
    Part.LineSegment(V(34.1, -6.5, 0), V(36.3, -10.2, 0)),
    Part.LineSegment(V(-5.9, 31.9, 0), V(-8, 28.2, 0)),
    Part.LineSegment(V(-8, 28.2, 0), V(-12.4, 28.2, 0)),
    Part.LineSegment(V(-12.4, 28.2, 0), V(-14.5, 31.9, 0)),
    Part.LineSegment(V(-14.5, 31.9, 0), V(-12.4, 35.7, 0)),
    Part.LineSegment(V(-12.4, 35.7, 0), V(-8, 35.7, 0)),
    Part.LineSegment(V(-8, 35.7, 0), V(-5.9, 31.9, 0)),
    Part.LineSegment(V(-27.6, 10.2, 0), V(-29.8, 6.5, 0)),
    Part.LineSegment(V(-29.8, 6.5, 0), V(-34.1, 6.5, 0)),
    Part.LineSegment(V(-34.1, 6.5, 0), V(-36.3, 10.2, 0)),
    Part.LineSegment(V(-36.3, 10.2, 0), V(-34.1, 13.9, 0)),
    Part.LineSegment(V(-34.1, 13.9, 0), V(-29.8, 13.9, 0)),
    Part.LineSegment(V(-29.8, 13.9, 0), V(-27.6, 10.2, 0)),
], False)
sketch7.addConstraint([
    Sketcher.Constraint("Coincident", 0, 2, 1, 1),
    Sketcher.Constraint("Coincident", 1, 2, 2, 1),
    Sketcher.Constraint("Coincident", 2, 2, 3, 1),
    Sketcher.Constraint("Coincident", 3, 2, 4, 1),
    Sketcher.Constraint("Coincident", 4, 2, 5, 1),
    Sketcher.Constraint("Coincident", 5, 2, 0, 1),
    Sketcher.Constraint("Coincident", 6, 2, 7, 1),
    Sketcher.Constraint("Coincident", 7, 2, 8, 1),
    Sketcher.Constraint("Coincident", 8, 2, 9, 1),
    Sketcher.Constraint("Coincident", 9, 2, 10, 1),
    Sketcher.Constraint("Coincident", 10, 2, 11, 1),
    Sketcher.Constraint("Coincident", 11, 2, 6, 1),
    Sketcher.Constraint("Coincident", 12, 2, 13, 1),
    Sketcher.Constraint("Coincident", 13, 2, 14, 1),
    Sketcher.Constraint("Coincident", 14, 2, 15, 1),
    Sketcher.Constraint("Coincident", 15, 2, 16, 1),
    Sketcher.Constraint("Coincident", 16, 2, 17, 1),
    Sketcher.Constraint("Coincident", 17, 2, 12, 1),
    Sketcher.Constraint("Coincident", 18, 2, 19, 1),
    Sketcher.Constraint("Coincident", 19, 2, 20, 1),
    Sketcher.Constraint("Coincident", 20, 2, 21, 1),
    Sketcher.Constraint("Coincident", 21, 2, 22, 1),
    Sketcher.Constraint("Coincident", 22, 2, 23, 1),
    Sketcher.Constraint("Coincident", 23, 2, 18, 1),
    Sketcher.Constraint("Horizontal", 1),
    Sketcher.Constraint("Horizontal", 4),
    Sketcher.Constraint("Horizontal", 7),
    Sketcher.Constraint("Horizontal", 10),
    Sketcher.Constraint("Horizontal", 13),
    Sketcher.Constraint("Horizontal", 16),
    Sketcher.Constraint("Horizontal", 19),
    Sketcher.Constraint("Horizontal", 22),
    Sketcher.Constraint("Symmetric", 3, 2, 12, 2, -1, 1),
    Sketcher.Constraint("Symmetric", 5, 2, 14, 2, -1, 1),
    Sketcher.Constraint("Symmetric", 0, 2, 15, 2, -1, 1),
    Sketcher.Constraint("Symmetric", 2, 2, 17, 2, -1, 1),
    Sketcher.Constraint("Symmetric", 9, 2, 18, 2, -1, 1),
    Sketcher.Constraint("Symmetric", 11, 2, 20, 2, -1, 1),
    Sketcher.Constraint("Symmetric", 6, 2, 21, 2, -1, 1),
    Sketcher.Constraint("Symmetric", 8, 2, 23, 2, -1, 1),
    Sketcher.Constraint("Parallel", 0, 3),
    Sketcher.Constraint("Parallel", 2, 5),
    Sketcher.Constraint("Parallel", 3, 6),
    Sketcher.Constraint("Parallel", 5, 8),
    Sketcher.Constraint("Parallel", 6, 9),
    Sketcher.Constraint("Parallel", 8, 11),
    Sketcher.Constraint("Parallel", 11, 14),
    Sketcher.Constraint("Parallel", 14, 17),
    Sketcher.Constraint("Parallel", 17, 20),
    Sketcher.Constraint("Parallel", 20, 23),
    Sketcher.Constraint("Horizontal", 2, 2, 5, 2),
    Sketcher.Constraint("Horizontal", 8, 2, 11, 2),
    Sketcher.Constraint("Vertical", 1, 2, 3, 2),
    Sketcher.Constraint("Vertical", 0, 2, 4, 2),
    Sketcher.Constraint("Vertical", 7, 2, 9, 2),
    Sketcher.Constraint("Equal", 4, 7),
    Sketcher.Constraint("Equal", 5, 6),
    Sketcher.Constraint("Angle", 0, Q("-120 deg")),
    Sketcher.Constraint("DistanceY", 8, 2, -1, 1, Q("10.2 mm")),
    Sketcher.Constraint("DistanceY", 1, 2, 3, 2, Q("7.5 mm")),
    Sketcher.Constraint("DistanceY", 3, 2, 12, 2, Q("56.35 mm")),
    Sketcher.Constraint("DistanceX", 4, 2, 6, 2, Q("21.725 mm")),
    Sketcher.Constraint("DistanceX", 12, 2, 10, 2, Q("42.125 mm")),
    Sketcher.Constraint("DistanceX", 1, 2, 1, 1, Q("4.330127 mm")),
])
pocket6 = body.newObject("PartDesign::Pocket", "Pocket005")
pocket6.Profile = sketch7
pocket6.Length = 3.7
pocket6.Reversed = True

sketch8 = body.newObject("Sketcher::SketchObject", "Sketch007")
sketch8.AttachmentSupport = (doc.getObject("XZ_Plane"), [""])
sketch8.MapMode = "FlatFace"
sketch8.AttachmentOffset = App.Placement(V(0, 0, 11), App.Rotation())
sketch8.addGeometry([
    Part.Circle(V(0, 0, 0), V(0, 0, 1), 50),
    Part.Circle(V(0, 0, 0), V(0, 0, 1), 48),
], False)
sketch8.addConstraint([
    Sketcher.Constraint("Coincident", 0, 3, -1, 1),
    Sketcher.Constraint("Coincident", 1, 3, -1, 1),
    Sketcher.Constraint("Diameter", 0, Q("100.2 mm")),
    Sketcher.Constraint("Diameter", 1, Q("95.2 mm")),
])
pocket7 = body.newObject("PartDesign::Pocket", "Pocket006")
pocket7.Profile = sketch8
pocket7.Length = 24

sketch9 = body.newObject("Sketcher::SketchObject", "Sketch008")
sketch9.AttachmentSupport = (doc.getObject("XZ_Plane"), [""])
sketch9.MapMode = "FlatFace"
sketch9.addGeometry([
    Part.Circle(V(0, 0, 0), V(0, 0, 1), 48),
    Part.Circle(V(0, 0, 0), V(0, 0, 1), 48),
], False)
sketch9.addConstraint([
    Sketcher.Constraint("Coincident", 0, 3, -1, 1),
    Sketcher.Constraint("Coincident", 1, 3, -1, 1),
    Sketcher.Constraint("Diameter", 0, Q("95.3 mm")),
    Sketcher.Constraint("Diameter", 1, Q("95.2 mm")),
])
pad2 = body.newObject("PartDesign::Pad", "Pad001")
pad2.Profile = sketch9
pad2.Length = 13
pad2.Reversed = True

doc.recompute()
